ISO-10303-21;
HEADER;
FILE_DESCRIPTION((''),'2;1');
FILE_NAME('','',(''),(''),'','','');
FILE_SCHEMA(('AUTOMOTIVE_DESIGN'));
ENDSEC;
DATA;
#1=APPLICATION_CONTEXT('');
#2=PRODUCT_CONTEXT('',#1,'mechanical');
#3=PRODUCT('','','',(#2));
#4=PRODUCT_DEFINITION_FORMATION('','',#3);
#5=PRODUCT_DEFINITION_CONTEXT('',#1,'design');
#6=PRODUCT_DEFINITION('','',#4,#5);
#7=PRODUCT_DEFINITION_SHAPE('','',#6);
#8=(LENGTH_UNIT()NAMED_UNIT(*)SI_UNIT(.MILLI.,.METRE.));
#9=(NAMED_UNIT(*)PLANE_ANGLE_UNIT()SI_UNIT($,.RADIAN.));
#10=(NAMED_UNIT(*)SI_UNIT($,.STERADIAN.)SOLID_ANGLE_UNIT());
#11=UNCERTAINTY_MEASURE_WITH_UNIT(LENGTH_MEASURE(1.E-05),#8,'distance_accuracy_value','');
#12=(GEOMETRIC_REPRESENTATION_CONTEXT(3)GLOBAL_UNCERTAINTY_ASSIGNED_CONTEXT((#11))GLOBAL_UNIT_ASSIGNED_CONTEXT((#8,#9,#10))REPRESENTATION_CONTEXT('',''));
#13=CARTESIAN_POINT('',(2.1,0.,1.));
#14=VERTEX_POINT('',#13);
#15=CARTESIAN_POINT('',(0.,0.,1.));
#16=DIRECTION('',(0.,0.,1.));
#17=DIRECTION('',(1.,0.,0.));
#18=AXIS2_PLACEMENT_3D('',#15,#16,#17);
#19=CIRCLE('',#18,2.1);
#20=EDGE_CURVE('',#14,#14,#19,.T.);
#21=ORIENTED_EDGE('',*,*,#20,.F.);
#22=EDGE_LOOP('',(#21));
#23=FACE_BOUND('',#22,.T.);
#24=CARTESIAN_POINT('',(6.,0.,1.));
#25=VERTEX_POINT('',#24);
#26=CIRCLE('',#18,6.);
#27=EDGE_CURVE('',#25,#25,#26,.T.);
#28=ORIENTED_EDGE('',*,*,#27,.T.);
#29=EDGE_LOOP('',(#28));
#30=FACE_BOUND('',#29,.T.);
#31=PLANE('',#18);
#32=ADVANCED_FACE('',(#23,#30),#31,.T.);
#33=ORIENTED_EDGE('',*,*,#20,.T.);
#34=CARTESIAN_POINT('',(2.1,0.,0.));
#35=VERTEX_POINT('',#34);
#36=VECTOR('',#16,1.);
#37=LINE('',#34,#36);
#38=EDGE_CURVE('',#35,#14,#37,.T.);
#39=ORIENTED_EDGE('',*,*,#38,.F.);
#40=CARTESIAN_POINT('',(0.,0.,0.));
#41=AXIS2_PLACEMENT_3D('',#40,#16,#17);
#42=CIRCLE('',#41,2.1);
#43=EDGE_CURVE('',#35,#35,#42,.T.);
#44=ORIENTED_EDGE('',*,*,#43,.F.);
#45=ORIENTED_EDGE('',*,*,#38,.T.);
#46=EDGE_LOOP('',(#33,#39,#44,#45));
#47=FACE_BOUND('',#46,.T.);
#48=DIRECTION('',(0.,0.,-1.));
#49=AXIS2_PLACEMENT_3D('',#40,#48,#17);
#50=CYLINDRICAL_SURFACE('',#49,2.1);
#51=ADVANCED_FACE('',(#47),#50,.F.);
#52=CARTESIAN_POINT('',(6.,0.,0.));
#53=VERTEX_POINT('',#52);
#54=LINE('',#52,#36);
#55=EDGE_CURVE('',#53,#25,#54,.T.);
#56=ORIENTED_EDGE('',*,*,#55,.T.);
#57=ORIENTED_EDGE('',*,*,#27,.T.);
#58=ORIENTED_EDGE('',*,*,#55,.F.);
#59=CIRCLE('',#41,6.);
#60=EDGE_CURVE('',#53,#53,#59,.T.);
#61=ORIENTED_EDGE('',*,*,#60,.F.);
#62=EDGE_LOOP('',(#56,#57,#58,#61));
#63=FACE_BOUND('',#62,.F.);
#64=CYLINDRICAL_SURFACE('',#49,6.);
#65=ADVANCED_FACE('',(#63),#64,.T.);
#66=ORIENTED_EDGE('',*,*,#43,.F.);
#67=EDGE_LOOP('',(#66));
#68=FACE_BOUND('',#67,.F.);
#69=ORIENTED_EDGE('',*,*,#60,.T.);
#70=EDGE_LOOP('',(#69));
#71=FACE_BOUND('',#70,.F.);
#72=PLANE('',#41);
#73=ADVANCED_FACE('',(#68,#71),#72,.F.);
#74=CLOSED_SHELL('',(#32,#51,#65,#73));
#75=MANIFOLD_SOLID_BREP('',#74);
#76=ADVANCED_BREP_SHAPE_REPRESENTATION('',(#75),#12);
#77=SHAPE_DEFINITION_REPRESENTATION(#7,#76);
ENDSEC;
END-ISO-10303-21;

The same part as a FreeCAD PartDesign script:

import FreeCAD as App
import Part
import Sketcher

V = App.Vector

doc = App.newDocument("Part")
body = doc.addObject("PartDesign::Body", "Body")

# Sketch on XY plane
sketch1 = body.newObject("Sketcher::SketchObject", "Sketch")
sketch1.AttachmentSupport = (doc.getObject("XY_Plane"), [""])
sketch1.MapMode = "FlatFace"
sketch1.addGeometry([
    Part.Circle(V(0, 0, 0), V(0, 0, 1), 6),
    Part.Circle(V(0, 0, 0), V(0, 0, 1), 2.1),
], False)
sketch1.addConstraint([
    Sketcher.Constraint("Coincident", 0, 3, -1, 1),
    Sketcher.Constraint("Coincident", 1, 3, -1, 1),
    Sketcher.Constraint("Diameter", 0, 12.0),
    Sketcher.Constraint("Diameter", 1, 4.2),
])
pad1 = body.newObject("PartDesign::Pad", "Pad")
pad1.Profile = sketch1
pad1.Length = 1

doc.recompute()
